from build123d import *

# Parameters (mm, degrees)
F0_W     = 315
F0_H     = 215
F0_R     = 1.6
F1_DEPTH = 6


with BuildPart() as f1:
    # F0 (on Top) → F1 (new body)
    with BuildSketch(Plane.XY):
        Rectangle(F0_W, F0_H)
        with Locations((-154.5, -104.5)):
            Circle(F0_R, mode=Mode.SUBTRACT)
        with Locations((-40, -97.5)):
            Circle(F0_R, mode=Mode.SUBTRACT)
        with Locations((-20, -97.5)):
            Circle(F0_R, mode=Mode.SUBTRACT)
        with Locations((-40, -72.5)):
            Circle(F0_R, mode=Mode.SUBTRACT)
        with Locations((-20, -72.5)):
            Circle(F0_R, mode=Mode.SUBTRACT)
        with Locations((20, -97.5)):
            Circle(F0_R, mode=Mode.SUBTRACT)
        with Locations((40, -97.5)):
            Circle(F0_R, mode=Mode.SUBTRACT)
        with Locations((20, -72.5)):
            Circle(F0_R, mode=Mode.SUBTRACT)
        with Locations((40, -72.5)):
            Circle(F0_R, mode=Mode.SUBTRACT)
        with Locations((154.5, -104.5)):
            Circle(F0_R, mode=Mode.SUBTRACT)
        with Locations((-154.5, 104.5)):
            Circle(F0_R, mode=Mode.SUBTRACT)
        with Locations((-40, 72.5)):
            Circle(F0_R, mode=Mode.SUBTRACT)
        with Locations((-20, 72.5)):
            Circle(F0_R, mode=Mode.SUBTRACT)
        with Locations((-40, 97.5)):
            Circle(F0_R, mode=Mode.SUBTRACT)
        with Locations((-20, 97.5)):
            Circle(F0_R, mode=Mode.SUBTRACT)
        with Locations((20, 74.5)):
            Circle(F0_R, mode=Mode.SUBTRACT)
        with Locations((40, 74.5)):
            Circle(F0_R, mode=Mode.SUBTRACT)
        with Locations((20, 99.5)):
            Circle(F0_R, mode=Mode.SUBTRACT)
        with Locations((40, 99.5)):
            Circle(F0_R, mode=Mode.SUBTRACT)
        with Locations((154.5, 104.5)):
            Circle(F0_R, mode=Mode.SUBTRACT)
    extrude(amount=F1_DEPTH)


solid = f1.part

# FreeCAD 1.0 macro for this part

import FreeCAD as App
import Part
import Sketcher
Q = App.Units.Quantity


def add_polygon(sketch, points):
    """Adds a closed chain of lines whose ends are joined by coincident constraints."""
    first, n = sketch.GeometryCount, len(points)
    for a, b in zip(points, points[1:] + points[:1]):
        sketch.addGeometry(Part.LineSegment(App.Vector(*a, 0), App.Vector(*b, 0)), False)
    for i in range(n):
        sketch.addConstraint(Sketcher.Constraint("Coincident", first + i, 2, first + (i + 1) % n, 1))

doc = App.newDocument("Part")
params = doc.addObject("Spreadsheet::Sheet", "Params")
for row, (alias, value) in enumerate([
    ("sketch1_diameter", "3.2 mm"),
    ("sketch1_width", "315 mm"),
    ("sketch1_height", "215 mm"),
    ("pad1_length", "6 mm"),
], start=1):
    params.set(f"A{row}", alias)
    params.set(f"B{row}", "=" + value)
    params.setAlias(f"B{row}", alias)

body = doc.addObject("PartDesign::Body", "Body")

# Sketch on XY plane
sketch1 = body.newObject("Sketcher::SketchObject", "Sketch")
sketch1.AttachmentSupport = (doc.getObject("XY_Plane"), [""])
sketch1.MapMode = "FlatFace"
add_polygon(sketch1, [(-157.5, 107.5), (-157.5, -107.5), (157.5, -107.5), (157.5, 107.5)])  # lines 0-3
sketch1.addGeometry(Part.Circle(App.Vector(-154.5, -104.5, 0), App.Vector(0, 0, 1), 1.6), False)  # 4
sketch1.addGeometry(Part.Circle(App.Vector(-40, -97.5, 0), App.Vector(0, 0, 1), 1.6), False)  # 5
sketch1.addGeometry(Part.Circle(App.Vector(-20, -97.5, 0), App.Vector(0, 0, 1), 1.6), False)  # 6
sketch1.addGeometry(Part.Circle(App.Vector(-40, -72.5, 0), App.Vector(0, 0, 1), 1.6), False)  # 7
sketch1.addGeometry(Part.Circle(App.Vector(-20, -72.5, 0), App.Vector(0, 0, 1), 1.6), False)  # 8
sketch1.addGeometry(Part.Circle(App.Vector(20, -97.5, 0), App.Vector(0, 0, 1), 1.6), False)  # 9
sketch1.addGeometry(Part.Circle(App.Vector(40, -97.5, 0), App.Vector(0, 0, 1), 1.6), False)  # 10
sketch1.addGeometry(Part.Circle(App.Vector(20, -72.5, 0), App.Vector(0, 0, 1), 1.6), False)  # 11
sketch1.addGeometry(Part.Circle(App.Vector(40, -72.5, 0), App.Vector(0, 0, 1), 1.6), False)  # 12
sketch1.addGeometry(Part.Circle(App.Vector(154.5, -104.5, 0), App.Vector(0, 0, 1), 1.6), False)  # 13
sketch1.addGeometry(Part.Circle(App.Vector(-154.5, 104.5, 0), App.Vector(0, 0, 1), 1.6), False)  # 14
sketch1.addGeometry(Part.Circle(App.Vector(-40, 72.5, 0), App.Vector(0, 0, 1), 1.6), False)  # 15
sketch1.addGeometry(Part.Circle(App.Vector(-20, 72.5, 0), App.Vector(0, 0, 1), 1.6), False)  # 16
sketch1.addGeometry(Part.Circle(App.Vector(-40, 97.5, 0), App.Vector(0, 0, 1), 1.6), False)  # 17
sketch1.addGeometry(Part.Circle(App.Vector(-20, 97.5, 0), App.Vector(0, 0, 1), 1.6), False)  # 18
sketch1.addGeometry(Part.Circle(App.Vector(20, 74.5, 0), App.Vector(0, 0, 1), 1.6), False)  # 19
sketch1.addGeometry(Part.Circle(App.Vector(40, 74.5, 0), App.Vector(0, 0, 1), 1.6), False)  # 20
sketch1.addGeometry(Part.Circle(App.Vector(20, 99.5, 0), App.Vector(0, 0, 1), 1.6), False)  # 21
sketch1.addGeometry(Part.Circle(App.Vector(40, 99.5, 0), App.Vector(0, 0, 1), 1.6), False)  # 22
sketch1.addGeometry(Part.Circle(App.Vector(154.5, 104.5, 0), App.Vector(0, 0, 1), 1.6), False)  # 23
sketch1.addConstraint([
    Sketcher.Constraint("Vertical", 0),
    Sketcher.Constraint("Horizontal", 1),
    Sketcher.Constraint("Vertical", 2),
    Sketcher.Constraint("Horizontal", 3),
    Sketcher.Constraint("Equal", 4, 5),
    Sketcher.Constraint("Equal", 5, 6),
    Sketcher.Constraint("Equal", 6, 7),
    Sketcher.Constraint("Equal", 7, 8),
    Sketcher.Constraint("Equal", 8, 9),
    Sketcher.Constraint("Equal", 9, 10),
    Sketcher.Constraint("Equal", 10, 11),
    Sketcher.Constraint("Equal", 11, 12),
    Sketcher.Constraint("Equal", 12, 13),
    Sketcher.Constraint("Equal", 13, 14),
    Sketcher.Constraint("Equal", 14, 15),
    Sketcher.Constraint("Equal", 15, 16),
    Sketcher.Constraint("Equal", 16, 17),
    Sketcher.Constraint("Equal", 17, 18),
    Sketcher.Constraint("Equal", 18, 19),
    Sketcher.Constraint("Equal", 19, 20),
    Sketcher.Constraint("Equal", 20, 21),
    Sketcher.Constraint("Equal", 21, 22),
    Sketcher.Constraint("Equal", 22, 23),
    Sketcher.Constraint("Symmetric", 13, 3, 14, 3, -1, 1),
    Sketcher.Constraint("Symmetric", 12, 3, 15, 3, -1, 1),
    Sketcher.Constraint("Symmetric", 11, 3, 16, 3, -1, 1),
    Sketcher.Constraint("Symmetric", 10, 3, 17, 3, -1, 1),
    Sketcher.Constraint("Symmetric", 9, 3, 18, 3, -1, 1),
    Sketcher.Constraint("Symmetric", 4, 3, 23, 3, -1, 1),
    Sketcher.Constraint("Symmetric", 0, 2, 2, 2, -1, 1),
    Sketcher.Constraint("Symmetric", 6, 3, 9, 3, -2),
    Sketcher.Constraint("Symmetric", 5, 3, 10, 3, -2),
    Sketcher.Constraint("Symmetric", 8, 3, 11, 3, -2),
    Sketcher.Constraint("Symmetric", 7, 3, 12, 3, -2),
    Sketcher.Constraint("Symmetric", 4, 3, 13, 3, -2),
    Sketcher.Constraint("Horizontal", 5, 3, 6, 3),
    Sketcher.Constraint("Horizontal", 7, 3, 8, 3),
    Sketcher.Constraint("Horizontal", 19, 3, 20, 3),
    Sketcher.Constraint("Horizontal", 21, 3, 22, 3),
    Sketcher.Constraint("Vertical", 5, 3, 7, 3),
    Sketcher.Constraint("Vertical", 6, 3, 8, 3),
    Sketcher.Constraint("Vertical", 11, 3, 19, 3),
    Sketcher.Constraint("Vertical", 12, 3, 20, 3),
    Sketcher.Constraint("Vertical", 19, 3, 21, 3),
    Sketcher.Constraint("Vertical", 20, 3, 22, 3),
    Sketcher.Constraint("Diameter", 4, Q("3.2 mm")),
    Sketcher.Constraint("DistanceX", 1, 1, 1, 2, Q("315 mm")),
    Sketcher.Constraint("DistanceY", 0, 2, 0, 1, Q("215 mm")),
    Sketcher.Constraint("DistanceX", 5, 3, -1, 1, Q("40 mm")),
    Sketcher.Constraint("DistanceX", 6, 3, -1, 1, Q("20 mm")),
    Sketcher.Constraint("DistanceY", 4, 3, 5, 3, Q("7 mm")),
    Sketcher.Constraint("DistanceY", 5, 3, 7, 3, Q("25 mm")),
    Sketcher.Constraint("DistanceY", 4, 3, 14, 3, Q("209 mm")),
    Sketcher.Constraint("DistanceY", 16, 3, 19, 3, Q("2 mm")),
    Sketcher.Constraint("DistanceY", 19, 3, 21, 3, Q("25 mm")),
    Sketcher.Constraint("DistanceX", 0, 2, 4, 3, Q("3 mm")),
])
sketch1.setExpression("Constraints[49]", "Params.sketch1_diameter")
sketch1.setExpression("Constraints[50]", "Params.sketch1_width")
sketch1.setExpression("Constraints[51]", "Params.sketch1_height")
pad1 = body.newObject("PartDesign::Pad", "Pad")
pad1.Profile = sketch1
pad1.setExpression("Length", "Params.pad1_length")

doc.recompute()
